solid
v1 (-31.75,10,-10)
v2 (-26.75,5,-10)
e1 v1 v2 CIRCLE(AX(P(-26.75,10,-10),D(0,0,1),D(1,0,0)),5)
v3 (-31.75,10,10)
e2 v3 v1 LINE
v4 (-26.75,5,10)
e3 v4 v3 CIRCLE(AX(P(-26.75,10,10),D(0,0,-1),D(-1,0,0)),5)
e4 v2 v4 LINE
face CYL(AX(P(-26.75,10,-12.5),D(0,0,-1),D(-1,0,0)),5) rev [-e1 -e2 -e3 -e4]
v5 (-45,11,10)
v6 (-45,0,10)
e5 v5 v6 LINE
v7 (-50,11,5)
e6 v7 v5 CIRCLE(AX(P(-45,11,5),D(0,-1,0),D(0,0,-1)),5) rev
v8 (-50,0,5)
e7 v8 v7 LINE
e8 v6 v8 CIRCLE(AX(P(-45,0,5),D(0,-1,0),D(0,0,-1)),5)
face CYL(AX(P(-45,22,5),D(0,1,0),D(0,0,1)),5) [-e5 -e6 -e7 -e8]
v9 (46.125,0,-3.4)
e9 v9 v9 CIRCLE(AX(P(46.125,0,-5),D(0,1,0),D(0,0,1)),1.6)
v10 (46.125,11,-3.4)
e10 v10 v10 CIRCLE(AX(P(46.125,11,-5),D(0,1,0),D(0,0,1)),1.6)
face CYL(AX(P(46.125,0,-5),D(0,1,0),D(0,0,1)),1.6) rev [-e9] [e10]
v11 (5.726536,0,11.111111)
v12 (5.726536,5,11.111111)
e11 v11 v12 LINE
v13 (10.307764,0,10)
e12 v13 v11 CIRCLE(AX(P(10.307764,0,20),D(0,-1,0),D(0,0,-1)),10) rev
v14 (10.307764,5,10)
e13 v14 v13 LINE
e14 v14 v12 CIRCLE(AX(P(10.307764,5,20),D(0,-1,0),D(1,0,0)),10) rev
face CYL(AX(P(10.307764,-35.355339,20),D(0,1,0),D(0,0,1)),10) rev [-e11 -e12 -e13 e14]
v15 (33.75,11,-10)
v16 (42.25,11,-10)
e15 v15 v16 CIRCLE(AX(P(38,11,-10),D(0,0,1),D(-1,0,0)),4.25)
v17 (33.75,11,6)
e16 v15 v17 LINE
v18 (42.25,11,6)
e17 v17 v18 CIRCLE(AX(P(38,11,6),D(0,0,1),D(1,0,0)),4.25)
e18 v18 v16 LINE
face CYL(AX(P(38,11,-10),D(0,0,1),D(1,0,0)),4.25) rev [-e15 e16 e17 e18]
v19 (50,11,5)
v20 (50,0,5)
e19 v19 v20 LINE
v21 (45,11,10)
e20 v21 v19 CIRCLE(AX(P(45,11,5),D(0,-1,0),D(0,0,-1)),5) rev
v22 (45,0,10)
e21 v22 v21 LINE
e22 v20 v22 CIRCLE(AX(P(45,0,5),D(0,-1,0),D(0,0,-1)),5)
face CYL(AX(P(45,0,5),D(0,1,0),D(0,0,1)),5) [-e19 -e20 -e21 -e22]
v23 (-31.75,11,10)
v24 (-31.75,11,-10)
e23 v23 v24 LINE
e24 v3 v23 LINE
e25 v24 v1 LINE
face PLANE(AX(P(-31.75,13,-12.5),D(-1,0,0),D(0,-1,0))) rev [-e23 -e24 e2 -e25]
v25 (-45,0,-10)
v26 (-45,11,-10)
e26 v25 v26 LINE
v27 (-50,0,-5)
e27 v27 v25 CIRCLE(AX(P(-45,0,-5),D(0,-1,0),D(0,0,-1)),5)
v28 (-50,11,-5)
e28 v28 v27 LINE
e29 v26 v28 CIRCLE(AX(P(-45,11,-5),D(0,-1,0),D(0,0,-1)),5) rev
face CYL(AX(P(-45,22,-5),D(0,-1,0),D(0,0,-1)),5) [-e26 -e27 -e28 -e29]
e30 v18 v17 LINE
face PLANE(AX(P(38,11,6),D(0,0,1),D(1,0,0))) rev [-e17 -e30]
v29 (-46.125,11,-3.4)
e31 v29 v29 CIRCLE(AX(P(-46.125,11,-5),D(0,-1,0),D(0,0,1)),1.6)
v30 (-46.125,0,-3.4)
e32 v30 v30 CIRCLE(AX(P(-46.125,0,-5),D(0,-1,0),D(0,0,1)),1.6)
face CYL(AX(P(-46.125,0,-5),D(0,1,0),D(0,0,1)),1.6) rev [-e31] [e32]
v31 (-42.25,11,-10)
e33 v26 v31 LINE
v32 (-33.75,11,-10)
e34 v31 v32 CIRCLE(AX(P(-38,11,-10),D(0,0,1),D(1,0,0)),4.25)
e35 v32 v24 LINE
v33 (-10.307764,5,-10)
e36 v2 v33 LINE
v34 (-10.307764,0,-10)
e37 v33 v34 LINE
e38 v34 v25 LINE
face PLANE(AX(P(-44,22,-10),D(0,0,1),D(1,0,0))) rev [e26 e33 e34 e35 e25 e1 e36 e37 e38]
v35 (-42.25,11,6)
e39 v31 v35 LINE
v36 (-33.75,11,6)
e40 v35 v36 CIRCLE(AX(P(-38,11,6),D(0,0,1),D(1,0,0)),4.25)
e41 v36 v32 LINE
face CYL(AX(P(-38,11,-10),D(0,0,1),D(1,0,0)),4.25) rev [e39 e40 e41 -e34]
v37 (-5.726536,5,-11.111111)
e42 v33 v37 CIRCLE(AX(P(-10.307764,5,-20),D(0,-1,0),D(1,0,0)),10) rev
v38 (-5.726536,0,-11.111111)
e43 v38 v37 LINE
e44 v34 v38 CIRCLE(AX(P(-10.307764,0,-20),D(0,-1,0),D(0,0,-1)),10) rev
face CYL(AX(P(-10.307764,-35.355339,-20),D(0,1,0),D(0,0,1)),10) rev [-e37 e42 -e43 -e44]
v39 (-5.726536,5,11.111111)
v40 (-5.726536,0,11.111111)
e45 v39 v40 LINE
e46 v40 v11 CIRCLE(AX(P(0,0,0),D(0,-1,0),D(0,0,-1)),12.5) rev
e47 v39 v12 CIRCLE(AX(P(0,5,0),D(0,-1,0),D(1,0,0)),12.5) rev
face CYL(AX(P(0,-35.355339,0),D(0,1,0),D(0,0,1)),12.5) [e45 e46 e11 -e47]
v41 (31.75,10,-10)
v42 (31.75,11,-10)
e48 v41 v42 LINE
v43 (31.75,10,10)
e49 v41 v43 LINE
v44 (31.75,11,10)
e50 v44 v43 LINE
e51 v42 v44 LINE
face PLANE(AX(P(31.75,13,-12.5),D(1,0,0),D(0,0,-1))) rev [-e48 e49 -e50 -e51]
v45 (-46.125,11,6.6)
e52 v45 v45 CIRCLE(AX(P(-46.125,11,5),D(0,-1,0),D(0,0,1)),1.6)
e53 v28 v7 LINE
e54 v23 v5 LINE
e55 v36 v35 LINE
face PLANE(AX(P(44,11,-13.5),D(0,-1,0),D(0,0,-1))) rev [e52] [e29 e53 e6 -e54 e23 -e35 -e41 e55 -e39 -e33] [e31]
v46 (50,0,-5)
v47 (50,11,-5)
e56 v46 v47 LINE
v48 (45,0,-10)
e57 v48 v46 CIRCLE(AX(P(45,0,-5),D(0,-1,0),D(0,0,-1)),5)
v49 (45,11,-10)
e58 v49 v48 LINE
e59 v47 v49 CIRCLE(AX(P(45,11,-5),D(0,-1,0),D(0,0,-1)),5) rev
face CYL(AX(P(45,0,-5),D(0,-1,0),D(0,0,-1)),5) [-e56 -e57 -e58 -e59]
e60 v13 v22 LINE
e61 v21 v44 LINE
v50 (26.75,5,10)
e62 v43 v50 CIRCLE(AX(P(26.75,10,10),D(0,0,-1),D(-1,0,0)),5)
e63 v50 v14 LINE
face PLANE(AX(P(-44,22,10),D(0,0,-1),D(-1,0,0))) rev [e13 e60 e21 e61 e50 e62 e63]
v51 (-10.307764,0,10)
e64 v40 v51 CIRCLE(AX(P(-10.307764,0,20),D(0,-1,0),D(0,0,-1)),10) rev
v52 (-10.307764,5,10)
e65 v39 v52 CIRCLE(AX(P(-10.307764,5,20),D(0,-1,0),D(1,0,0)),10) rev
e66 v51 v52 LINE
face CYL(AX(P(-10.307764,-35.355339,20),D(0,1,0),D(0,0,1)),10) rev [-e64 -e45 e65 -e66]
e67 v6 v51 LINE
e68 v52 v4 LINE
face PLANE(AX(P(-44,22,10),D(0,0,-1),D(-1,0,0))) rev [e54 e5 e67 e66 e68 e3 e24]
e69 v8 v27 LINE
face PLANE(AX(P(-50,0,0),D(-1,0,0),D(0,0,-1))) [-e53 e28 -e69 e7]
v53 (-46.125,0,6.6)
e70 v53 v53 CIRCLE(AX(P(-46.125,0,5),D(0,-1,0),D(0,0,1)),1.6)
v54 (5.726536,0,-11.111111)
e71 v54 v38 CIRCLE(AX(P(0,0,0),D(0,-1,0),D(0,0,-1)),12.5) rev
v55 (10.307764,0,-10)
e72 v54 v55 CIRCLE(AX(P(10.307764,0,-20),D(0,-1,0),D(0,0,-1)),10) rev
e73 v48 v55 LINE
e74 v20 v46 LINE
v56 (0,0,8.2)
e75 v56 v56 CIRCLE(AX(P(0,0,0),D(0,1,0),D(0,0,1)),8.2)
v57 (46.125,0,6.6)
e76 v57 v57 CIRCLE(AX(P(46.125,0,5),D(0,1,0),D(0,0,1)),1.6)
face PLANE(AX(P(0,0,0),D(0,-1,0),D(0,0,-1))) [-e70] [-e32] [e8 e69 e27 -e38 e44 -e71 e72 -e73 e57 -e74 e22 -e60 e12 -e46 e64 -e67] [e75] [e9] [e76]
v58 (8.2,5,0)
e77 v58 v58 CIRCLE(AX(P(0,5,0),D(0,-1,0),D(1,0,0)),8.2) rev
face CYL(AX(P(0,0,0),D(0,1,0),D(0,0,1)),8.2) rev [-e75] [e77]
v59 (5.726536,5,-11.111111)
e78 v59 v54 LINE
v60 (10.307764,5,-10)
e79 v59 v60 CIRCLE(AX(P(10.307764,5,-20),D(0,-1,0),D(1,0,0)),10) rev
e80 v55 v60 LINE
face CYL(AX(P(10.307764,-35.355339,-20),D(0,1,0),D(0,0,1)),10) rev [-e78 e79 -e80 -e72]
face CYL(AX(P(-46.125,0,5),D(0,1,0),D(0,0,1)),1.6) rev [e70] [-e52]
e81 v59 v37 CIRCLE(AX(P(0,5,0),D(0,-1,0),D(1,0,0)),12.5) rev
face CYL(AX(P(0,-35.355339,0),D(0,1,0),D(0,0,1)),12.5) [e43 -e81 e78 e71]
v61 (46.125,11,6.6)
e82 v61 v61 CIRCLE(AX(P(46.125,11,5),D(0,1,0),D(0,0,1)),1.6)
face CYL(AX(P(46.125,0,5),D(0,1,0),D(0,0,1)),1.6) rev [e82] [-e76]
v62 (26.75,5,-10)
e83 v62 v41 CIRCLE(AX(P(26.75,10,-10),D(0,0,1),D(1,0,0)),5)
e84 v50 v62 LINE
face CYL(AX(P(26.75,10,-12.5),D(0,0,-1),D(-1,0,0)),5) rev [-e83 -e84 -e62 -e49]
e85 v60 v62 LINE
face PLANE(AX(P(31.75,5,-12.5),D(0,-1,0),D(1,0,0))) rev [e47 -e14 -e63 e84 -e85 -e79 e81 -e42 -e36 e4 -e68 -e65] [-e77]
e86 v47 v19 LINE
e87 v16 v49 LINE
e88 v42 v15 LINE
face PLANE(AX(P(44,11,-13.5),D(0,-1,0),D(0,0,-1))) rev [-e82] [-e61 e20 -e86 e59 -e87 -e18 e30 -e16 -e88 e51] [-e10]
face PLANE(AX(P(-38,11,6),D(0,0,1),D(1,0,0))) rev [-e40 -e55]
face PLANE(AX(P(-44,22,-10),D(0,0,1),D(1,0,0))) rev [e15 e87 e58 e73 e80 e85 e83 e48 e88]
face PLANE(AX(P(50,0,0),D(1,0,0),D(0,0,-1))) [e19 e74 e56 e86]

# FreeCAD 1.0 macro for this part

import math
import FreeCAD as App
import Part
import Sketcher

V = App.Vector
Q = App.Units.Quantity


def edges_at(feature, points):
    """Names of the edges that pass closest to the given points."""
    edges = feature.Shape.Edges
    near = lambda p: min(range(len(edges)), key=lambda i: edges[i].distToShape(Part.Vertex(*p))[0])
    return sorted({f"Edge{near(p) + 1}" for p in points})


def add_polygon(sketch, points):
    """Adds a closed chain of lines whose ends are joined by coincident constraints."""
    first, n = sketch.GeometryCount, len(points)
    for a, b in zip(points, points[1:] + points[:1]):
        sketch.addGeometry(Part.LineSegment(App.Vector(*a, 0), App.Vector(*b, 0)), False)
    for i in range(n):
        sketch.addConstraint(Sketcher.Constraint("Coincident", first + i, 2, first + (i + 1) % n, 1))

doc = App.newDocument("Part")
params = doc.addObject("Spreadsheet::Sheet", "Params")
for row, (alias, value) in enumerate([
    ("sketch1_width", "88 mm"),
    ("sketch1_height", "20 mm"),
    ("pad1_length", "22 mm"),
    ("sketch2_diameter", "8.5 mm"),
    ("sketch3_diameter", "25 mm"),
    ("pad2_length", "22 mm"),
    ("sketch4_diameter", "16.4 mm"),
    ("fillet_radius", "10 mm"),
    ("sketch5_width", "11 mm"),
    ("sketch5_height", "27 mm"),
    ("sketch6_height", "8 mm"),
    ("sketch6_width", "63.5 mm"),
    ("fillet2_radius", "5 mm"),
    ("sketch7_width", "11 mm"),
    ("sketch7_height", "20 mm"),
    ("pad3_length", "6 mm"),
    ("sketch8_diameter", "3.2 mm"),
    ("fillet3_radius", "5 mm"),
    ("sketch9_radius", "4.25 mm"),
    ("pad4_length", "4 mm"),
], start=1):
    params.set(f"A{row}", alias)
    params.set(f"B{row}", "=" + value)
    params.setAlias(f"B{row}", alias)

body = doc.addObject("PartDesign::Body", "Body")

sketch1 = body.newObject("Sketcher::SketchObject", "Sketch")
sketch1.AttachmentSupport = (doc.getObject("XZ_Plane"), [""])
sketch1.MapMode = "FlatFace"
add_polygon(sketch1, [(-44, -10), (-44, 10), (44, 10), (44, -10)])
sketch1.addConstraint([
    Sketcher.Constraint("Vertical", 0),
    Sketcher.Constraint("Horizontal", 1),
    Sketcher.Constraint("Vertical", 2),
    Sketcher.Constraint("Horizontal", 3),
    Sketcher.Constraint("Symmetric", 0, 2, 2, 2, -1, 1),
    Sketcher.Constraint("DistanceX", 1, 1, 1, 2, Q("88 mm")),
    Sketcher.Constraint("DistanceY", 0, 1, 0, 2, Q("20 mm")),
])
sketch1.setExpression("Constraints[9]", "Params.sketch1_width")
sketch1.setExpression("Constraints[10]", "Params.sketch1_height")
pad1 = body.newObject("PartDesign::Pad", "Pad")
pad1.Profile = sketch1
pad1.setExpression("Length", "Params.pad1_length")
pad1.Reversed = True

sketch2 = body.newObject("Sketcher::SketchObject", "Sketch001")
sketch2.AttachmentSupport = (doc.getObject("XY_Plane"), [""])
sketch2.MapMode = "FlatFace"
sketch2.AttachmentOffset = App.Placement(V(0, 0, 10), App.Rotation())
sketch2.addGeometry([
    Part.Circle(V(-38, 11, 0), V(0, 0, 1), 4.2),
    Part.Circle(V(38, 11, 0), V(0, 0, 1), 4.2),
], False)
sketch2.addConstraint([
    Sketcher.Constraint("Equal", 0, 1),
    Sketcher.Constraint("Symmetric", 0, 3, 1, 3, -2),
    Sketcher.Constraint("Diameter", 0, Q("8.5 mm")),
    Sketcher.Constraint("DistanceX", 0, 3, -1, 1, Q("38 mm")),
    Sketcher.Constraint("DistanceY", -1, 1, 0, 3, Q("11 mm")),
])
sketch2.setExpression("Constraints[2]", "Params.sketch2_diameter")
pocket1 = body.newObject("PartDesign::Pocket", "Pocket")
pocket1.Profile = sketch2
pocket1.Type = "ThroughAll"

sketch3 = body.newObject("Sketcher::SketchObject", "Sketch002")
sketch3.AttachmentSupport = (doc.getObject("XZ_Plane"), [""])
sketch3.MapMode = "FlatFace"
sketch3.AttachmentOffset = App.Placement(V(0, 0, -22), App.Rotation())
sketch3.addGeometry(Part.Circle(V(0, 0, 0), V(0, 0, 1), 12), False)
sketch3.addConstraint([
    Sketcher.Constraint("Coincident", 0, 3, -1, 1),
    Sketcher.Constraint("Diameter", 0, Q("25 mm")),
])
sketch3.setExpression("Constraints[1]", "Params.sketch3_diameter")
pad2 = body.newObject("PartDesign::Pad", "Pad001")
pad2.Profile = sketch3
pad2.setExpression("Length", "Params.pad2_length")

sketch4 = body.newObject("Sketcher::SketchObject", "Sketch003")
sketch4.AttachmentSupport = (doc.getObject("XZ_Plane"), [""])
sketch4.MapMode = "FlatFace"
sketch4.AttachmentOffset = App.Placement(V(0, 0, -22), App.Rotation())
sketch4.addGeometry(Part.Circle(V(0, 0, 0), V(0, 0, 1), 8), False)
sketch4.addConstraint([
    Sketcher.Constraint("Coincident", 0, 3, -1, 1),
    Sketcher.Constraint("Diameter", 0, Q("16.4 mm")),
])
sketch4.setExpression("Constraints[1]", "Params.sketch4_diameter")
pocket2 = body.newObject("PartDesign::Pocket", "Pocket001")
pocket2.Profile = sketch4
pocket2.Type = "ThroughAll"
pocket2.Reversed = True
doc.recompute()

fillet = body.newObject("PartDesign::Fillet", "Fillet")
fillet.Base = (pocket2, edges_at(pocket2, [
    (7.5, 11, -10),
    (7.5, 11, 10),
    (-7.5, 11, -10),
    (-7.5, 11, 10),
]))
fillet.setExpression("Radius", "Params.fillet_radius")

sketch5 = body.newObject("Sketcher::SketchObject", "Sketch004")
sketch5.AttachmentSupport = (doc.getObject("YZ_Plane"), [""])
sketch5.MapMode = "FlatFace"
sketch5.AttachmentOffset = App.Placement(V(0, 0, -44), App.Rotation())
add_polygon(sketch5, [(22, -14), (11, -14), (11, 14), (22, 14)])
sketch5.addConstraint([
    Sketcher.Constraint("Horizontal", 0),
    Sketcher.Constraint("Vertical", 1),
    Sketcher.Constraint("Horizontal", 2),
    Sketcher.Constraint("Vertical", 3),
    Sketcher.Constraint("DistanceX", 0, 2, 0, 1, Q("11 mm")),
    Sketcher.Constraint("DistanceY", 1, 1, 1, 2, Q("27 mm")),
    Sketcher.Constraint("DistanceX", -1, 1, 0, 2, Q("11 mm")),
    Sketcher.Constraint("DistanceY", 0, 2, -1, 1, Q("13.5 mm")),
])
sketch5.setExpression("Constraints[8]", "Params.sketch5_width")
sketch5.setExpression("Constraints[9]", "Params.sketch5_height")
pocket3 = body.newObject("PartDesign::Pocket", "Pocket002")
pocket3.Profile = sketch5
pocket3.Type = "ThroughAll"
pocket3.Reversed = True

sketch6 = body.newObject("Sketcher::SketchObject", "Sketch005")
sketch6.AttachmentSupport = (doc.getObject("XY_Plane"), [""])
sketch6.MapMode = "FlatFace"
add_polygon(sketch6, [(-32, 13), (-32, 5), (32, 5), (32, 13)])
sketch6.addConstraint([
    Sketcher.Constraint("Vertical", 0),
    Sketcher.Constraint("Horizontal", 1),
    Sketcher.Constraint("Vertical", 2),
    Sketcher.Constraint("Horizontal", 3),
    Sketcher.Constraint("DistanceY", 0, 2, 0, 1, Q("8 mm")),
    Sketcher.Constraint("DistanceX", 1, 1, 1, 2, Q("63.5 mm")),
    Sketcher.Constraint("DistanceY", -1, 1, 0, 2, Q("5 mm")),
    Sketcher.Constraint("DistanceX", 0, 2, -1, 1, Q("31.75 mm")),
])
sketch6.setExpression("Constraints[8]", "Params.sketch6_height")
sketch6.setExpression("Constraints[9]", "Params.sketch6_width")
pocket4 = body.newObject("PartDesign::Pocket", "Pocket003")
pocket4.Profile = sketch6
pocket4.Type = "ThroughAll"
pocket4.Midplane = True
doc.recompute()

fillet2 = body.newObject("PartDesign::Fillet", "Fillet001")
fillet2.Base = (pocket4, edges_at(pocket4, [(31.75, 5, 0), (-31.75, 5, 0)]))
fillet2.setExpression("Radius", "Params.fillet2_radius")

sketch7 = body.newObject("Sketcher::SketchObject", "Sketch006")
sketch7.AttachmentSupport = (doc.getObject("YZ_Plane"), [""])
sketch7.MapMode = "FlatFace"
sketch7.AttachmentOffset = App.Placement(V(0, 0, 44), App.Rotation())
add_polygon(sketch7, [(11, 10), (0, 10), (0, -10), (11, -10)])
sketch7.addConstraint([
    Sketcher.Constraint("Horizontal", 0),
    Sketcher.Constraint("Vertical", 1),
    Sketcher.Constraint("Horizontal", 2),
    Sketcher.Constraint("Vertical", 3),
    Sketcher.Constraint("Symmetric", 0, 2, 1, 2, -1, 1),
    Sketcher.Constraint("DistanceX", 0, 2, 0, 1, Q("11 mm")),
    Sketcher.Constraint("DistanceY", 1, 2, 1, 1, Q("20 mm")),
])
sketch7.setExpression("Constraints[9]", "Params.sketch7_width")
sketch7.setExpression("Constraints[10]", "Params.sketch7_height")
pad3 = body.newObject("PartDesign::Pad", "Pad002")
pad3.Profile = sketch7
pad3.setExpression("Length", "Params.pad3_length")

sketch8 = body.newObject("Sketcher::SketchObject", "Sketch007")
sketch8.AttachmentSupport = (doc.getObject("XZ_Plane"), [""])
sketch8.MapMode = "FlatFace"
sketch8.AttachmentOffset = App.Placement(V(0, 0, -11), App.Rotation())
sketch8.addGeometry([
    Part.Circle(V(46.1, 5, 0), V(0, 0, 1), 1.6),
    Part.Circle(V(46.1, -5, 0), V(0, 0, 1), 1.6),
], False)
sketch8.addConstraint([
    Sketcher.Constraint("Equal", 0, 1),
    Sketcher.Constraint("Symmetric", 0, 3, 1, 3, -1),
    Sketcher.Constraint("Diameter", 0, Q("3.2 mm")),
    Sketcher.Constraint("DistanceY", -1, 1, 0, 3, Q("5 mm")),
    Sketcher.Constraint("DistanceX", -1, 1, 0, 3, Q("46.125 mm")),
])
sketch8.setExpression("Constraints[2]", "Params.sketch8_diameter")
pocket5 = body.newObject("PartDesign::Pocket", "Pocket004")
pocket5.Profile = sketch8
pocket5.Type = "ThroughAll"
pocket5.Reversed = True
doc.recompute()

mirrored = body.newObject("PartDesign::Mirrored", "Mirrored")
mirrored.Originals = [pad3, pocket5]
mirrored.MirrorPlane = (doc.getObject("YZ_Plane"), [""])
body.Tip = mirrored
doc.recompute()

fillet3 = body.newObject("PartDesign::Fillet", "Fillet002")
fillet3.Base = (mirrored, edges_at(mirrored, [
    (50, 5.5, -10),
    (50, 5.5, 10),
    (-50, 5.5, 10),
    (-50, 5.5, -10),
]))
fillet3.setExpression("Radius", "Params.fillet3_radius")

sketch9 = body.newObject("Sketcher::SketchObject", "Sketch008")
sketch9.AttachmentSupport = (doc.getObject("XY_Plane"), [""])
sketch9.MapMode = "FlatFace"
sketch9.AttachmentOffset = App.Placement(V(0, 0, 10), App.Rotation())
sketch9.addGeometry([
    Part.LineSegment(V(-33.8, 11, 0), V(-42.2, 11, 0)),
    Part.ArcOfCircle(Part.Circle(V(-38, 11, 0), V(0, 0, 1), 4.2), math.radians(180), math.radians(360)),
    Part.LineSegment(V(42.2, 11, 0), V(33.8, 11, 0)),
    Part.ArcOfCircle(Part.Circle(V(38, 11, 0), V(0, 0, 1), 4.2), math.radians(180), math.radians(360)),
], False)
sketch9.addConstraint([
    Sketcher.Constraint("Coincident", 0, 1, 1, 2),
    Sketcher.Constraint("Coincident", 1, 1, 0, 2),
    Sketcher.Constraint("Coincident", 2, 1, 3, 2),
    Sketcher.Constraint("Coincident", 3, 1, 2, 2),
    Sketcher.Constraint("Horizontal", 0),
    Sketcher.Constraint("Horizontal", 2),
    Sketcher.Constraint("Equal", 1, 3),
    Sketcher.Constraint("Symmetric", 1, 3, 3, 3, -2),
    Sketcher.Constraint("Horizontal", 3, 3, 0, 1),
    Sketcher.Constraint("Horizontal", 1, 1, 2, 1),
    Sketcher.Constraint("Radius", 1, Q("4.25 mm")),
    Sketcher.Constraint("DistanceX", 1, 3, -1, 1, Q("38 mm")),
    Sketcher.Constraint("DistanceY", -1, 1, 1, 3, Q("11 mm")),
])
sketch9.setExpression("Constraints[10]", "Params.sketch9_radius")
pad4 = body.newObject("PartDesign::Pad", "Pad003")
pad4.Profile = sketch9
pad4.setExpression("Length", "Params.pad4_length")
pad4.Reversed = True

doc.recompute()
